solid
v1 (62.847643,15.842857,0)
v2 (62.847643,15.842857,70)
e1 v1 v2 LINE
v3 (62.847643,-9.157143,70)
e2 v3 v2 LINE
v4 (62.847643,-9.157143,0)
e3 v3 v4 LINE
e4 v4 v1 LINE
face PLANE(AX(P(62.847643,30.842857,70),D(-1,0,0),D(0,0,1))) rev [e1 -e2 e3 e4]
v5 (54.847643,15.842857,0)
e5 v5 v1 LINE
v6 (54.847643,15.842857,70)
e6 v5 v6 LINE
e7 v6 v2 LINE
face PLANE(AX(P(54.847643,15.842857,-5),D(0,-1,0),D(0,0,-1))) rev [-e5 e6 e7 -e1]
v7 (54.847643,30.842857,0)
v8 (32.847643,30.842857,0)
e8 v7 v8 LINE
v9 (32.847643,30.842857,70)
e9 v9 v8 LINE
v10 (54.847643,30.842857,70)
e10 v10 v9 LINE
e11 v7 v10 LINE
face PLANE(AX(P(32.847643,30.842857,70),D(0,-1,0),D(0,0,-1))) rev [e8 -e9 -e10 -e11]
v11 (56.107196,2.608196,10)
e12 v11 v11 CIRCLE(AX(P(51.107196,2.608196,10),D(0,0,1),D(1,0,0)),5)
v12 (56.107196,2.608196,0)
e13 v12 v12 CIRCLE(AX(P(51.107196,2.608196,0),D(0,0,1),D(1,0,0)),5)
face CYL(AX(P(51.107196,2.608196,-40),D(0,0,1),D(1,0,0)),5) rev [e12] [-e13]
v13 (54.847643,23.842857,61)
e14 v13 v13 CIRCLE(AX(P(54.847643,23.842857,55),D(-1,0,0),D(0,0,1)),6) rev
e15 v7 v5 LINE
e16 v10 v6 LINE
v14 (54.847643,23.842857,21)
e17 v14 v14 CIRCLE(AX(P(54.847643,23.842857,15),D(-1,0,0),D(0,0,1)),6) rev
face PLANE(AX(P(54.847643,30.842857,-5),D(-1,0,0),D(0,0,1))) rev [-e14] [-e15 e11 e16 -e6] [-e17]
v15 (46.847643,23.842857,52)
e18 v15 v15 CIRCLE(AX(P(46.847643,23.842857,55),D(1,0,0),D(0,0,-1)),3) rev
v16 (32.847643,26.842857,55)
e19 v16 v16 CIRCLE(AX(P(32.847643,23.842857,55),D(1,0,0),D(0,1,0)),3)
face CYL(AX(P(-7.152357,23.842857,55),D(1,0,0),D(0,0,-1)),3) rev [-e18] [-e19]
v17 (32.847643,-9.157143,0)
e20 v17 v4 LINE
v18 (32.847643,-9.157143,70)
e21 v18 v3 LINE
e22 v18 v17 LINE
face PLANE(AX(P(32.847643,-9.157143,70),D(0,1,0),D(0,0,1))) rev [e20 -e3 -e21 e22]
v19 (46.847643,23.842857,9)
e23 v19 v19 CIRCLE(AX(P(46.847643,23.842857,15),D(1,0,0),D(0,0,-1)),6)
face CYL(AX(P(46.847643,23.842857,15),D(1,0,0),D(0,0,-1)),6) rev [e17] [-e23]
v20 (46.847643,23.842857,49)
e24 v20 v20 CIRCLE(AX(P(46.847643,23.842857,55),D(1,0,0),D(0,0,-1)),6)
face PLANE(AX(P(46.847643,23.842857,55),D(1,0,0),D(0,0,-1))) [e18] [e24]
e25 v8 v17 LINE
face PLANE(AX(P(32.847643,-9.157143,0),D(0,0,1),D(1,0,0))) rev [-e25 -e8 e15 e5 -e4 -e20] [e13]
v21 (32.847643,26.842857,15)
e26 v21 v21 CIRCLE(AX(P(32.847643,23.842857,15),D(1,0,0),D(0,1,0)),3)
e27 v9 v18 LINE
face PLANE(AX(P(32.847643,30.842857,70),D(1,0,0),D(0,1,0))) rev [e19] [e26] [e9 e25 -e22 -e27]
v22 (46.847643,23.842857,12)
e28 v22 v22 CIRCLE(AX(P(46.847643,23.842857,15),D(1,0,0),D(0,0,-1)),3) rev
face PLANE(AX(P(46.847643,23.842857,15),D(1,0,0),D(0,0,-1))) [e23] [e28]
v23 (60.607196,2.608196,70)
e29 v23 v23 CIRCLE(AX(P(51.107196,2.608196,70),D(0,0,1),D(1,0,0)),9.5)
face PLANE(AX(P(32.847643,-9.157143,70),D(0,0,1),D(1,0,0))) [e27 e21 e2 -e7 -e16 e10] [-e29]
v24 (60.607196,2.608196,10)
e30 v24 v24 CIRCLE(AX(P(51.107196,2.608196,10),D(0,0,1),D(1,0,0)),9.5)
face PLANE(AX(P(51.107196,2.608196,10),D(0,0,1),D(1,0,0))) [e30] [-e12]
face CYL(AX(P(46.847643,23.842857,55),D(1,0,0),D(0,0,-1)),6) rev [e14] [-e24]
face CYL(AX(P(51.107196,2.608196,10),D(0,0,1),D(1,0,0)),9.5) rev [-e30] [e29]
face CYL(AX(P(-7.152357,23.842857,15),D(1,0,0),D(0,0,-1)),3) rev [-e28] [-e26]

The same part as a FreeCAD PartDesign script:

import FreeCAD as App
import Part
import Sketcher

V = App.Vector


def add_polygon(sketch, points):
    """Adds a closed chain of lines whose ends are joined by coincident constraints."""
    first, n = sketch.GeometryCount, len(points)
    for a, b in zip(points, points[1:] + points[:1]):
        sketch.addGeometry(Part.LineSegment(App.Vector(*a, 0), App.Vector(*b, 0)), False)
    for i in range(n):
        sketch.addConstraint(Sketcher.Constraint("Coincident", first + i, 2, first + (i + 1) % n, 1))

doc = App.newDocument("Part")
body = doc.addObject("PartDesign::Body", "Body")

sketch1 = doc.addObject("Sketcher::SketchObject", "Sketch")
body.addObject(sketch1)
sketch1.AttachmentSupport = (doc.XY_Plane, [""])
sketch1.MapMode = "FlatFace"
add_polygon(sketch1, [(33, 31), (33, -9), (63, -9), (63, 31)])
sketch1.addConstraint(Sketcher.Constraint("Vertical", 0))
sketch1.addConstraint(Sketcher.Constraint("Horizontal", 1))
sketch1.addConstraint(Sketcher.Constraint("Vertical", 2))
sketch1.addConstraint(Sketcher.Constraint("Horizontal", 3))
sketch1.addConstraint(Sketcher.Constraint("DistanceX", 1, 1, 1, 2, 30.0))
sketch1.addConstraint(Sketcher.Constraint("DistanceY", 0, 2, 0, 1, 40.0))
sketch1.addConstraint(Sketcher.Constraint("DistanceX", -1, 1, 0, 2, 32.847643))
sketch1.addConstraint(Sketcher.Constraint("DistanceY", 0, 2, -1, 1, 9.157143))
pad1 = doc.addObject("PartDesign::Pad", "Pad")
body.addObject(pad1)
pad1.Profile = sketch1
pad1.Length = 70

sketch2 = doc.addObject("Sketcher::SketchObject", "Sketch001")
body.addObject(sketch2)
sketch2.AttachmentSupport = (doc.YZ_Plane, [""])
sketch2.MapMode = "FlatFace"
sketch2.AttachmentOffset = App.Placement(V(0, 0, 62.847643), App.Rotation())
sketch2.addGeometry(Part.Circle(V(23.8, 55, 0), V(0, 0, 1), 3), False)
sketch2.addGeometry(Part.Circle(V(23.8, 15, 0), V(0, 0, 1), 3), False)
sketch2.addConstraint(Sketcher.Constraint("Equal", 0, 1))
sketch2.addConstraint(Sketcher.Constraint("Vertical", 0, 3, 1, 3))
sketch2.addConstraint(Sketcher.Constraint("Diameter", 0, 6.0))
sketch2.addConstraint(Sketcher.Constraint("DistanceY", -1, 1, 0, 3, 55.0))
sketch2.addConstraint(Sketcher.Constraint("DistanceY", -1, 1, 1, 3, 15.0))
sketch2.addConstraint(Sketcher.Constraint("DistanceX", -1, 1, 0, 3, 23.842857))
pocket1 = doc.addObject("PartDesign::Pocket", "Pocket")
body.addObject(pocket1)
pocket1.Profile = sketch2
pocket1.Length = 70

sketch3 = doc.addObject("Sketcher::SketchObject", "Sketch002")
body.addObject(sketch3)
sketch3.AttachmentSupport = (doc.YZ_Plane, [""])
sketch3.MapMode = "FlatFace"
sketch3.AttachmentOffset = App.Placement(V(0, 0, 62.847643), App.Rotation())
sketch3.addGeometry(Part.Circle(V(24, 55, 0), V(0, 0, 1), 6), False)
sketch3.addGeometry(Part.Circle(V(24, 15, 0), V(0, 0, 1), 6), False)
sketch3.addConstraint(Sketcher.Constraint("Equal", 0, 1))
sketch3.addConstraint(Sketcher.Constraint("Vertical", 0, 3, 1, 3))
sketch3.addConstraint(Sketcher.Constraint("Diameter", 0, 12.0))
sketch3.addConstraint(Sketcher.Constraint("DistanceY", -1, 1, 0, 3, 55.0))
sketch3.addConstraint(Sketcher.Constraint("DistanceY", -1, 1, 1, 3, 15.0))
sketch3.addConstraint(Sketcher.Constraint("DistanceX", -1, 1, 0, 3, 23.842857))
pocket2 = doc.addObject("PartDesign::Pocket", "Pocket001")
body.addObject(pocket2)
pocket2.Profile = sketch3
pocket2.Length = 16

sketch4 = doc.addObject("Sketcher::SketchObject", "Sketch003")
body.addObject(sketch4)
sketch4.AttachmentSupport = (doc.XY_Plane, [""])
sketch4.MapMode = "FlatFace"
sketch4.AttachmentOffset = App.Placement(V(0, 0, 70), App.Rotation())
add_polygon(sketch4, [(55, 31), (55, 16), (63, 16), (63, 31)])
sketch4.addConstraint(Sketcher.Constraint("Vertical", 0))
sketch4.addConstraint(Sketcher.Constraint("Horizontal", 1))
sketch4.addConstraint(Sketcher.Constraint("Vertical", 2))
sketch4.addConstraint(Sketcher.Constraint("Horizontal", 3))
sketch4.addConstraint(Sketcher.Constraint("DistanceX", 1, 1, 1, 2, 8.0))
sketch4.addConstraint(Sketcher.Constraint("DistanceY", 0, 2, 0, 1, 15.0))
sketch4.addConstraint(Sketcher.Constraint("DistanceX", -1, 1, 0, 2, 54.847643))
sketch4.addConstraint(Sketcher.Constraint("DistanceY", -1, 1, 0, 2, 15.842857))
pocket3 = doc.addObject("PartDesign::Pocket", "Pocket002")
body.addObject(pocket3)
pocket3.Profile = sketch4
pocket3.Length = 75

sketch5 = doc.addObject("Sketcher::SketchObject", "Sketch004")
body.addObject(sketch5)
sketch5.AttachmentSupport = (doc.XY_Plane, [""])
sketch5.MapMode = "FlatFace"
sketch5.AttachmentOffset = App.Placement(V(0, 0, 70), App.Rotation())
sketch5.addGeometry(Part.Circle(V(51, 3, 0), V(0, 0, 1), 10), False)
sketch5.addConstraint(Sketcher.Constraint("Diameter", 0, 19.0))
sketch5.addConstraint(Sketcher.Constraint("DistanceX", -1, 1, 0, 3, 51.107196))
sketch5.addConstraint(Sketcher.Constraint("DistanceY", -1, 1, 0, 3, 2.608196))
pocket4 = doc.addObject("PartDesign::Pocket", "Pocket003")
body.addObject(pocket4)
pocket4.Profile = sketch5
pocket4.Length = 60

sketch6 = doc.addObject("Sketcher::SketchObject", "Sketch005")
body.addObject(sketch6)
sketch6.AttachmentSupport = (doc.XY_Plane, [""])
sketch6.MapMode = "FlatFace"
sketch6.AttachmentOffset = App.Placement(V(0, 0, 10), App.Rotation())
sketch6.addGeometry(Part.Circle(V(51, 3, 0), V(0, 0, 1), 5), False)
sketch6.addConstraint(Sketcher.Constraint("Diameter", 0, 10.0))
sketch6.addConstraint(Sketcher.Constraint("DistanceX", -1, 1, 0, 3, 51.107196))
sketch6.addConstraint(Sketcher.Constraint("DistanceY", -1, 1, 0, 3, 2.608196))
pocket5 = doc.addObject("PartDesign::Pocket", "Pocket004")
body.addObject(pocket5)
pocket5.Profile = sketch6
pocket5.Length = 50

doc.recompute()
